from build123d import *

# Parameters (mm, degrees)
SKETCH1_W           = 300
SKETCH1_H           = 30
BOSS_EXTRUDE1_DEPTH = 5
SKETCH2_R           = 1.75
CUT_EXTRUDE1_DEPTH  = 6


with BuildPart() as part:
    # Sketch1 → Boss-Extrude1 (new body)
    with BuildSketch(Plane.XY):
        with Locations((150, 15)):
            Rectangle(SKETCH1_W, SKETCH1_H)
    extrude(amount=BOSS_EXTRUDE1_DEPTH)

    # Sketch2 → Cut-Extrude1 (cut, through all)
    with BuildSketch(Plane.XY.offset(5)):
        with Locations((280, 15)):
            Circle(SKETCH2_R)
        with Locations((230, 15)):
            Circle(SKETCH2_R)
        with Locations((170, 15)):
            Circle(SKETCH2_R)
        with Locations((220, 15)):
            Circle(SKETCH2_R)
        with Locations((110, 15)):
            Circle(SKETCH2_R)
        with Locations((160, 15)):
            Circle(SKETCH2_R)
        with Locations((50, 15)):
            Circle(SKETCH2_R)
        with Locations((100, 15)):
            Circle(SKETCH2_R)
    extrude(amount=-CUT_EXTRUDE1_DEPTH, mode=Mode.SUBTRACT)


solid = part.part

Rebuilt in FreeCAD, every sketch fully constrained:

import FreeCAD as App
import Part
import Sketcher

V = App.Vector

doc = App.newDocument("Part")
body = doc.addObject("PartDesign::Body", "Body")

sketch1 = doc.addObject("Sketcher::SketchObject", "Sketch")
body.addObject(sketch1)
sketch1.AttachmentSupport = (doc.XY_Plane, [""])
sketch1.MapMode = "FlatFace"
sketch1.addGeometry([
    Part.LineSegment(V(0, 30, 0), V(0, 0, 0)),
    Part.LineSegment(V(0, 0, 0), V(300, 0, 0)),
    Part.LineSegment(V(300, 0, 0), V(300, 30, 0)),
    Part.LineSegment(V(300, 30, 0), V(0, 30, 0)),
], False)
sketch1.addConstraint([
    Sketcher.Constraint("Coincident", 0, 2, 1, 1),
    Sketcher.Constraint("Coincident", 1, 2, 2, 1),
    Sketcher.Constraint("Coincident", 2, 2, 3, 1),
    Sketcher.Constraint("Coincident", 3, 2, 0, 1),
    Sketcher.Constraint("Vertical", 0),
    Sketcher.Constraint("Horizontal", 1),
    Sketcher.Constraint("Vertical", 2),
    Sketcher.Constraint("Horizontal", 3),
    Sketcher.Constraint("Coincident", 0, 2, -1, 1),
    Sketcher.Constraint("DistanceX", 1, 1, 1, 2, 300.0),
    Sketcher.Constraint("DistanceY", 0, 2, 0, 1, 30.0),
])
pad1 = doc.addObject("PartDesign::Pad", "Pad")
body.addObject(pad1)
pad1.Profile = sketch1
pad1.Length = 5

sketch2 = doc.addObject("Sketcher::SketchObject", "Sketch001")
body.addObject(sketch2)
sketch2.AttachmentSupport = (doc.XY_Plane, [""])
sketch2.MapMode = "FlatFace"
sketch2.AttachmentOffset = App.Placement(V(0, 0, 5), App.Rotation())
sketch2.addGeometry([
    Part.Circle(V(280, 15, 0), V(0, 0, 1), 1.8),
    Part.Circle(V(230, 15, 0), V(0, 0, 1), 1.8),
    Part.Circle(V(170, 15, 0), V(0, 0, 1), 1.8),
    Part.Circle(V(220, 15, 0), V(0, 0, 1), 1.8),
    Part.Circle(V(110, 15, 0), V(0, 0, 1), 1.8),
    Part.Circle(V(160, 15, 0), V(0, 0, 1), 1.8),
    Part.Circle(V(50, 15, 0), V(0, 0, 1), 1.8),
    Part.Circle(V(100, 15, 0), V(0, 0, 1), 1.8),
], False)
sketch2.addConstraint([
    Sketcher.Constraint("Equal", 0, 1),
    Sketcher.Constraint("Equal", 1, 2),
    Sketcher.Constraint("Equal", 2, 3),
    Sketcher.Constraint("Equal", 3, 4),
    Sketcher.Constraint("Equal", 4, 5),
    Sketcher.Constraint("Equal", 5, 6),
    Sketcher.Constraint("Equal", 6, 7),
    Sketcher.Constraint("Horizontal", 0, 3, 1, 3),
    Sketcher.Constraint("Horizontal", 1, 3, 2, 3),
    Sketcher.Constraint("Horizontal", 2, 3, 3, 3),
    Sketcher.Constraint("Horizontal", 3, 3, 4, 3),
    Sketcher.Constraint("Horizontal", 4, 3, 5, 3),
    Sketcher.Constraint("Horizontal", 5, 3, 6, 3),
    Sketcher.Constraint("Horizontal", 6, 3, 7, 3),
    Sketcher.Constraint("Diameter", 0, 3.5),
    Sketcher.Constraint("DistanceX", -1, 1, 0, 3, 280.0),
    Sketcher.Constraint("DistanceY", -1, 1, 0, 3, 15.0),
    Sketcher.Constraint("DistanceX", -1, 1, 1, 3, 230.0),
    Sketcher.Constraint("DistanceX", -1, 1, 2, 3, 170.0),
    Sketcher.Constraint("DistanceX", -1, 1, 3, 3, 220.0),
    Sketcher.Constraint("DistanceX", -1, 1, 4, 3, 110.0),
    Sketcher.Constraint("DistanceX", -1, 1, 5, 3, 160.0),
    Sketcher.Constraint("DistanceX", -1, 1, 6, 3, 50.0),
    Sketcher.Constraint("DistanceX", -1, 1, 7, 3, 100.0),
])
pocket1 = doc.addObject("PartDesign::Pocket", "Pocket")
body.addObject(pocket1)
pocket1.Profile = sketch2
pocket1.Type = "ThroughAll"

doc.recompute()
